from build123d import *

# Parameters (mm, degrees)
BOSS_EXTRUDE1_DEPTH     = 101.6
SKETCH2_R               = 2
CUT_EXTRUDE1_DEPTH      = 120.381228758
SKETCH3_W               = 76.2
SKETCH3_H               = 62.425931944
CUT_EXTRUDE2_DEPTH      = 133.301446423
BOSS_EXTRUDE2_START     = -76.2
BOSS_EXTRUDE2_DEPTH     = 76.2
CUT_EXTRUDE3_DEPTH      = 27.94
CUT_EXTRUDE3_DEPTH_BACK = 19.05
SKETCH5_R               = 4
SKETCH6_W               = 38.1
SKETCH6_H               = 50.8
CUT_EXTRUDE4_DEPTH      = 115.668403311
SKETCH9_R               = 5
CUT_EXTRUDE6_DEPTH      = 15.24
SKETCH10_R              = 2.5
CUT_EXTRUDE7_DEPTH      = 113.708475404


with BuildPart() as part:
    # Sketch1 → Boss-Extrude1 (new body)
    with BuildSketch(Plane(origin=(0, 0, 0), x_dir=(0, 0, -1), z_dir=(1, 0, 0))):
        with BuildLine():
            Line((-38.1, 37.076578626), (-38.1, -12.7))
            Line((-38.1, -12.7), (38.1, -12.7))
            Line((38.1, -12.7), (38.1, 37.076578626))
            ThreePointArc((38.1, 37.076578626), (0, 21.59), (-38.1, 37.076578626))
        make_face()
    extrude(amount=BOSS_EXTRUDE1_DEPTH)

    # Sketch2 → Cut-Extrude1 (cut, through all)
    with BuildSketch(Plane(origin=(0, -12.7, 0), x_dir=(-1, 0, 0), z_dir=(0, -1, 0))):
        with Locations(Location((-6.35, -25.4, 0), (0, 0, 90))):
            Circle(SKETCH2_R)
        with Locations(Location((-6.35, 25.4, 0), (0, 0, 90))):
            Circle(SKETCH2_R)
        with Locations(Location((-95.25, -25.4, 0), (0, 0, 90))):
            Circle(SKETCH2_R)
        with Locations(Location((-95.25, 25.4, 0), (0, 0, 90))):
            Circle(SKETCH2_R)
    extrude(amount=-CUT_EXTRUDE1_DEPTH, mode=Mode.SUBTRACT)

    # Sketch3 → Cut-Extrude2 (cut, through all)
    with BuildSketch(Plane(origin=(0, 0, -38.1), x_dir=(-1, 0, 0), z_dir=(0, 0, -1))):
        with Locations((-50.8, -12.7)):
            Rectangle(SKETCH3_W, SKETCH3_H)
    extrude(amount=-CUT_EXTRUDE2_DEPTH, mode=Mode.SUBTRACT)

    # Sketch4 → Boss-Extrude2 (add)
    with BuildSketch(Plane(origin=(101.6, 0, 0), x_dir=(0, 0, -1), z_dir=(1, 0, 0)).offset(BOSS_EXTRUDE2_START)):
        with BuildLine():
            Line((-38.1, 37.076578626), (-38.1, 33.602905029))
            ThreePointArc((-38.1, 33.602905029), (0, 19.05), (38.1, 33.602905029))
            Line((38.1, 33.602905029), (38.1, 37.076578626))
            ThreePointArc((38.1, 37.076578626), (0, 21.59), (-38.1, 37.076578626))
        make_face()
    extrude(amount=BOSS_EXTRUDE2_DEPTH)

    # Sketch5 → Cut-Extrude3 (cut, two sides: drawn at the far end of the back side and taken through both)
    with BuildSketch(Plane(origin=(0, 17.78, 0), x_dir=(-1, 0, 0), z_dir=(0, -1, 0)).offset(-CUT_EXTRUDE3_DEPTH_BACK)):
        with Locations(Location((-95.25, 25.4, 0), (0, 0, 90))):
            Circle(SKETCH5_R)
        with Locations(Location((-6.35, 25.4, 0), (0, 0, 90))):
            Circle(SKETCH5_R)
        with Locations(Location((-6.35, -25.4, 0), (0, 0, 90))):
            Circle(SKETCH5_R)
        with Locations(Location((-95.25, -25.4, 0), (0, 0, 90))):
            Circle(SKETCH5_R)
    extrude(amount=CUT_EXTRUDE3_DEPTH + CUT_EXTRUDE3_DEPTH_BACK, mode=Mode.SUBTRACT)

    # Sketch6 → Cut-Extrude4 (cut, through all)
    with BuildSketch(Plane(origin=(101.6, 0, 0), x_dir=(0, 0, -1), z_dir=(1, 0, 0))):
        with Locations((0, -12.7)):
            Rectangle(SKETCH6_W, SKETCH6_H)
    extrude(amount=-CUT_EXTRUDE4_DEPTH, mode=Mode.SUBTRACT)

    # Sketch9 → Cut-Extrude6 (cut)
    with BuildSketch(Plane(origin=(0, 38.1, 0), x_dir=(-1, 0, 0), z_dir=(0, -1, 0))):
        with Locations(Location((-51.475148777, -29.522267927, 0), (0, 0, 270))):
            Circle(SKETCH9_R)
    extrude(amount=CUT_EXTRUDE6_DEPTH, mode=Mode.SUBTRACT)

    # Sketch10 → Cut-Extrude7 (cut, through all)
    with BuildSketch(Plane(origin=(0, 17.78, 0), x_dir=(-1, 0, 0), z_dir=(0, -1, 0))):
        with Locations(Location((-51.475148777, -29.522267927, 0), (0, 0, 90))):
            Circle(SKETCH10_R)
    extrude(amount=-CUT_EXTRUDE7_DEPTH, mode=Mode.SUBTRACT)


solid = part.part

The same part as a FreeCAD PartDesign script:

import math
import FreeCAD as App
import Part
import Sketcher
from FreeCAD import Vector
Q = App.Units.Quantity

doc = App.newDocument("Part")
body = doc.addObject("PartDesign::Body", "Body")

sketch1 = doc.addObject("Sketcher::SketchObject", "Sketch")
body.addObject(sketch1)
sketch1.AttachmentSupport = (doc.YZ_Plane, [""])
sketch1.MapMode = "FlatFace"
sketch1.addGeometry(Part.LineSegment(Vector(37, 38, 0), Vector(-13, 38, 0)), False)
sketch1.addGeometry(Part.LineSegment(Vector(-13, 38, 0), Vector(-13, -38, 0)), False)
sketch1.addGeometry(Part.LineSegment(Vector(-13, -38, 0), Vector(37, -38, 0)), False)
sketch1.addGeometry(Part.ArcOfCircle(Part.Circle(Vector(76, 0, 0), Vector(0, 0, 1), 55), math.radians(136), math.radians(224)), False)
sketch1.addConstraint(Sketcher.Constraint("Coincident", 0, 2, 1, 1))
sketch1.addConstraint(Sketcher.Constraint("Coincident", 1, 2, 2, 1))
sketch1.addConstraint(Sketcher.Constraint("Coincident", 2, 2, 3, 2))
sketch1.addConstraint(Sketcher.Constraint("Coincident", 3, 1, 0, 1))
sketch1.addConstraint(Sketcher.Constraint("Horizontal", 0))
sketch1.addConstraint(Sketcher.Constraint("Vertical", 1))
sketch1.addConstraint(Sketcher.Constraint("Horizontal", 2))
sketch1.addConstraint(Sketcher.Constraint("Symmetric", 2, 2, 3, 1, -1))
sketch1.addConstraint(Sketcher.Constraint("DistanceY", 1, 2, 1, 1, Q("3 in")))
sketch1.addConstraint(Sketcher.Constraint("Radius", 3, Q("2.15 in")))
sketch1.addConstraint(Sketcher.Constraint("DistanceX", -1, 1, 3, 3, Q("3 in")))
sketch1.addConstraint(Sketcher.Constraint("DistanceX", 0, 2, -1, 1, Q("0.5 in")))
pad1 = doc.addObject("PartDesign::Pad", "Pad")
body.addObject(pad1)
pad1.Profile = sketch1
pad1.Length = Q("4 in")

sketch2 = doc.addObject("Sketcher::SketchObject", "Sketch001")
body.addObject(sketch2)
sketch2.AttachmentSupport = (doc.XZ_Plane, [""])
sketch2.MapMode = "FlatFace"
sketch2.AttachmentOffset = App.Placement(Vector(0, 0, 0.5 * 25.4), App.Rotation())
sketch2.addGeometry(Part.Circle(Vector(6.3, 25.4, 0), Vector(0, 0, 1), 2), False)
sketch2.addGeometry(Part.Circle(Vector(6.3, -25.4, 0), Vector(0, 0, 1), 2), False)
sketch2.addGeometry(Part.Circle(Vector(95.2, 25.4, 0), Vector(0, 0, 1), 2), False)
sketch2.addGeometry(Part.Circle(Vector(95.2, -25.4, 0), Vector(0, 0, 1), 2), False)
sketch2.addConstraint(Sketcher.Constraint("Equal", 0, 1))
sketch2.addConstraint(Sketcher.Constraint("Equal", 1, 2))
sketch2.addConstraint(Sketcher.Constraint("Equal", 2, 3))
sketch2.addConstraint(Sketcher.Constraint("Symmetric", 0, 3, 1, 3, -1))
sketch2.addConstraint(Sketcher.Constraint("Symmetric", 2, 3, 3, 3, -1))
sketch2.addConstraint(Sketcher.Constraint("Horizontal", 0, 3, 2, 3))
sketch2.addConstraint(Sketcher.Constraint("DistanceY", -1, 1, 0, 3, Q("1 in")))
sketch2.addConstraint(Sketcher.Constraint("DistanceX", 0, 3, 2, 3, Q("3.5 in")))
sketch2.addConstraint(Sketcher.Constraint("Diameter", 0, 4.0))
sketch2.addConstraint(Sketcher.Constraint("DistanceX", -1, 1, 0, 3, Q("0.25 in")))
pocket1 = doc.addObject("PartDesign::Pocket", "Pocket")
body.addObject(pocket1)
pocket1.Profile = sketch2
pocket1.Type = "ThroughAll"

sketch3 = doc.addObject("Sketcher::SketchObject", "Sketch002")
body.addObject(sketch3)
sketch3.AttachmentSupport = (doc.XY_Plane, [""])
sketch3.MapMode = "FlatFace"
sketch3.AttachmentOffset = App.Placement(Vector(0, 0, -1.5 * 25.4), App.Rotation())
sketch3.addGeometry(Part.LineSegment(Vector(89, 19, 0), Vector(89, -44, 0)), False)
sketch3.addGeometry(Part.LineSegment(Vector(89, -44, 0), Vector(13, -44, 0)), False)
sketch3.addGeometry(Part.LineSegment(Vector(13, -44, 0), Vector(13, 19, 0)), False)
sketch3.addGeometry(Part.LineSegment(Vector(13, 19, 0), Vector(89, 19, 0)), False)
sketch3.addConstraint(Sketcher.Constraint("Coincident", 0, 2, 1, 1))
sketch3.addConstraint(Sketcher.Constraint("Coincident", 1, 2, 2, 1))
sketch3.addConstraint(Sketcher.Constraint("Coincident", 2, 2, 3, 1))
sketch3.addConstraint(Sketcher.Constraint("Coincident", 3, 2, 0, 1))
sketch3.addConstraint(Sketcher.Constraint("Vertical", 0))
sketch3.addConstraint(Sketcher.Constraint("Horizontal", 1))
sketch3.addConstraint(Sketcher.Constraint("Vertical", 2))
sketch3.addConstraint(Sketcher.Constraint("Horizontal", 3))
sketch3.addConstraint(Sketcher.Constraint("DistanceX", 1, 2, 1, 1, Q("3 in")))
sketch3.addConstraint(Sketcher.Constraint("DistanceX", -1, 1, 0, 2, Q("3.5 in")))
sketch3.addConstraint(Sketcher.Constraint("DistanceY", 0, 2, 0, 1, 62.425932))
sketch3.addConstraint(Sketcher.Constraint("DistanceY", 0, 2, -1, 1, 43.912966))
pocket2 = doc.addObject("PartDesign::Pocket", "Pocket001")
body.addObject(pocket2)
pocket2.Profile = sketch3
pocket2.Type = "ThroughAll"
pocket2.Reversed = True

sketch4 = doc.addObject("Sketcher::SketchObject", "Sketch003")
body.addObject(sketch4)
sketch4.AttachmentSupport = (doc.YZ_Plane, [""])
sketch4.MapMode = "FlatFace"
sketch4.AttachmentOffset = App.Placement(Vector(0, 0, 1 * 25.4), App.Rotation())
sketch4.addGeometry(Part.LineSegment(Vector(37.1, 38.1, 0), Vector(33.6, 38.1, 0)), False)
sketch4.addGeometry(Part.ArcOfCircle(Part.Circle(Vector(76.2, 0, 0), Vector(0, 0, 1), 57.1), math.radians(138), math.radians(222)), False)
sketch4.addGeometry(Part.LineSegment(Vector(33.6, -38.1, 0), Vector(37.1, -38.1, 0)), False)
sketch4.addGeometry(Part.ArcOfCircle(Part.Circle(Vector(76.2, 0, 0), Vector(0, 0, 1), 54.6), math.radians(136), math.radians(224)), False)
sketch4.addConstraint(Sketcher.Constraint("Coincident", 0, 2, 1, 1))
sketch4.addConstraint(Sketcher.Constraint("Coincident", 1, 2, 2, 1))
sketch4.addConstraint(Sketcher.Constraint("Coincident", 2, 2, 3, 2))
sketch4.addConstraint(Sketcher.Constraint("Coincident", 3, 1, 0, 1))
sketch4.addConstraint(Sketcher.Constraint("Horizontal", 0))
sketch4.addConstraint(Sketcher.Constraint("Horizontal", 2))
sketch4.addConstraint(Sketcher.Constraint("Coincident", 3, 3, 1, 3))
sketch4.addConstraint(Sketcher.Constraint("Symmetric", 0, 2, 1, 2, -1))
sketch4.addConstraint(Sketcher.Constraint("Radius", 1, Q("2.25 in")))
sketch4.addConstraint(Sketcher.Constraint("Radius", 3, Q("2.15 in")))
sketch4.addConstraint(Sketcher.Constraint("DistanceX", -1, 1, 1, 3, Q("3 in")))
sketch4.addConstraint(Sketcher.Constraint("DistanceY", 1, 2, 0, 2, Q("3 in")))
pad2 = doc.addObject("PartDesign::Pad", "Pad001")
body.addObject(pad2)
pad2.Profile = sketch4
pad2.Length = Q("3 in")

sketch5 = doc.addObject("Sketcher::SketchObject", "Sketch004")
body.addObject(sketch5)
sketch5.AttachmentSupport = (doc.XZ_Plane, [""])
sketch5.MapMode = "FlatFace"
sketch5.AttachmentOffset = App.Placement(Vector(0, 0, -0.7 * 25.4), App.Rotation())
sketch5.addGeometry(Part.Circle(Vector(95.2, -25.4, 0), Vector(0, 0, 1), 4), False)
sketch5.addGeometry(Part.Circle(Vector(6.3, -25.4, 0), Vector(0, 0, 1), 4), False)
sketch5.addGeometry(Part.Circle(Vector(6.3, 25.4, 0), Vector(0, 0, 1), 4), False)
sketch5.addGeometry(Part.Circle(Vector(95.2, 25.4, 0), Vector(0, 0, 1), 4), False)
sketch5.addConstraint(Sketcher.Constraint("Equal", 0, 1))
sketch5.addConstraint(Sketcher.Constraint("Equal", 1, 2))
sketch5.addConstraint(Sketcher.Constraint("Equal", 2, 3))
sketch5.addConstraint(Sketcher.Constraint("Symmetric", 1, 3, 2, 3, -1))
sketch5.addConstraint(Sketcher.Constraint("Symmetric", 0, 3, 3, 3, -1))
sketch5.addConstraint(Sketcher.Constraint("Horizontal", 0, 3, 1, 3))
sketch5.addConstraint(Sketcher.Constraint("DistanceY", 0, 3, -1, 1, Q("1 in")))
sketch5.addConstraint(Sketcher.Constraint("DistanceX", 1, 3, 0, 3, Q("3.5 in")))
sketch5.addConstraint(Sketcher.Constraint("Diameter", 0, 8.0))
sketch5.addConstraint(Sketcher.Constraint("DistanceX", -1, 1, 0, 3, Q("3.75 in")))
pocket3 = doc.addObject("PartDesign::Pocket", "Pocket002")
body.addObject(pocket3)
pocket3.Profile = sketch5
pocket3.Type = "TwoLengths"
pocket3.Length = Q("1.1 in")
pocket3.Length2 = Q("0.75 in")
pocket3.Reversed = True

sketch6 = doc.addObject("Sketcher::SketchObject", "Sketch005")
body.addObject(sketch6)
sketch6.AttachmentSupport = (doc.YZ_Plane, [""])
sketch6.MapMode = "FlatFace"
sketch6.AttachmentOffset = App.Placement(Vector(0, 0, 4 * 25.4), App.Rotation())
sketch6.addGeometry(Part.LineSegment(Vector(13, 19, 0), Vector(-38, 19, 0)), False)
sketch6.addGeometry(Part.LineSegment(Vector(-38, 19, 0), Vector(-38, -19, 0)), False)
sketch6.addGeometry(Part.LineSegment(Vector(-38, -19, 0), Vector(13, -19, 0)), False)
sketch6.addGeometry(Part.LineSegment(Vector(13, -19, 0), Vector(13, 19, 0)), False)
sketch6.addConstraint(Sketcher.Constraint("Coincident", 0, 2, 1, 1))
sketch6.addConstraint(Sketcher.Constraint("Coincident", 1, 2, 2, 1))
sketch6.addConstraint(Sketcher.Constraint("Coincident", 2, 2, 3, 1))
sketch6.addConstraint(Sketcher.Constraint("Coincident", 3, 2, 0, 1))
sketch6.addConstraint(Sketcher.Constraint("Horizontal", 0))
sketch6.addConstraint(Sketcher.Constraint("Vertical", 1))
sketch6.addConstraint(Sketcher.Constraint("Horizontal", 2))
sketch6.addConstraint(Sketcher.Constraint("Vertical", 3))
sketch6.addConstraint(Sketcher.Constraint("DistanceX", 0, 2, 0, 1, Q("2 in")))
sketch6.addConstraint(Sketcher.Constraint("DistanceY", 1, 2, 1, 1, Q("1.5 in")))
sketch6.addConstraint(Sketcher.Constraint("DistanceX", 0, 2, -1, 1, Q("1.5 in")))
sketch6.addConstraint(Sketcher.Constraint("DistanceY", -1, 1, 0, 2, Q("0.75 in")))
pocket4 = doc.addObject("PartDesign::Pocket", "Pocket003")
body.addObject(pocket4)
pocket4.Profile = sketch6
pocket4.Type = "ThroughAll"

sketch7 = doc.addObject("Sketcher::SketchObject", "Sketch006")
body.addObject(sketch7)
sketch7.AttachmentSupport = (doc.XZ_Plane, [""])
sketch7.MapMode = "FlatFace"
sketch7.AttachmentOffset = App.Placement(Vector(0, 0, -1.5 * 25.4), App.Rotation())
sketch7.addGeometry(Part.Circle(Vector(51, 30, 0), Vector(0, 0, 1), 5), False)
sketch7.addConstraint(Sketcher.Constraint("Diameter", 0, 10.0))
sketch7.addConstraint(Sketcher.Constraint("DistanceX", -1, 1, 0, 3, 51.475149))
sketch7.addConstraint(Sketcher.Constraint("DistanceY", -1, 1, 0, 3, 29.522268))
pocket5 = doc.addObject("PartDesign::Pocket", "Pocket004")
body.addObject(pocket5)
pocket5.Profile = sketch7
pocket5.Length = Q("0.6 in")
pocket5.Reversed = True

sketch8 = doc.addObject("Sketcher::SketchObject", "Sketch007")
body.addObject(sketch8)
sketch8.AttachmentSupport = (doc.XZ_Plane, [""])
sketch8.MapMode = "FlatFace"
sketch8.AttachmentOffset = App.Placement(Vector(0, 0, -0.7 * 25.4), App.Rotation())
sketch8.addGeometry(Part.Circle(Vector(51.5, 29.5, 0), Vector(0, 0, 1), 2.5), False)
sketch8.addConstraint(Sketcher.Constraint("Diameter", 0, 5.0))
sketch8.addConstraint(Sketcher.Constraint("DistanceX", -1, 1, 0, 3, 51.475149))
sketch8.addConstraint(Sketcher.Constraint("DistanceY", -1, 1, 0, 3, 29.522268))
pocket6 = doc.addObject("PartDesign::Pocket", "Pocket005")
body.addObject(pocket6)
pocket6.Profile = sketch8
pocket6.Type = "ThroughAll"

doc.recompute()
